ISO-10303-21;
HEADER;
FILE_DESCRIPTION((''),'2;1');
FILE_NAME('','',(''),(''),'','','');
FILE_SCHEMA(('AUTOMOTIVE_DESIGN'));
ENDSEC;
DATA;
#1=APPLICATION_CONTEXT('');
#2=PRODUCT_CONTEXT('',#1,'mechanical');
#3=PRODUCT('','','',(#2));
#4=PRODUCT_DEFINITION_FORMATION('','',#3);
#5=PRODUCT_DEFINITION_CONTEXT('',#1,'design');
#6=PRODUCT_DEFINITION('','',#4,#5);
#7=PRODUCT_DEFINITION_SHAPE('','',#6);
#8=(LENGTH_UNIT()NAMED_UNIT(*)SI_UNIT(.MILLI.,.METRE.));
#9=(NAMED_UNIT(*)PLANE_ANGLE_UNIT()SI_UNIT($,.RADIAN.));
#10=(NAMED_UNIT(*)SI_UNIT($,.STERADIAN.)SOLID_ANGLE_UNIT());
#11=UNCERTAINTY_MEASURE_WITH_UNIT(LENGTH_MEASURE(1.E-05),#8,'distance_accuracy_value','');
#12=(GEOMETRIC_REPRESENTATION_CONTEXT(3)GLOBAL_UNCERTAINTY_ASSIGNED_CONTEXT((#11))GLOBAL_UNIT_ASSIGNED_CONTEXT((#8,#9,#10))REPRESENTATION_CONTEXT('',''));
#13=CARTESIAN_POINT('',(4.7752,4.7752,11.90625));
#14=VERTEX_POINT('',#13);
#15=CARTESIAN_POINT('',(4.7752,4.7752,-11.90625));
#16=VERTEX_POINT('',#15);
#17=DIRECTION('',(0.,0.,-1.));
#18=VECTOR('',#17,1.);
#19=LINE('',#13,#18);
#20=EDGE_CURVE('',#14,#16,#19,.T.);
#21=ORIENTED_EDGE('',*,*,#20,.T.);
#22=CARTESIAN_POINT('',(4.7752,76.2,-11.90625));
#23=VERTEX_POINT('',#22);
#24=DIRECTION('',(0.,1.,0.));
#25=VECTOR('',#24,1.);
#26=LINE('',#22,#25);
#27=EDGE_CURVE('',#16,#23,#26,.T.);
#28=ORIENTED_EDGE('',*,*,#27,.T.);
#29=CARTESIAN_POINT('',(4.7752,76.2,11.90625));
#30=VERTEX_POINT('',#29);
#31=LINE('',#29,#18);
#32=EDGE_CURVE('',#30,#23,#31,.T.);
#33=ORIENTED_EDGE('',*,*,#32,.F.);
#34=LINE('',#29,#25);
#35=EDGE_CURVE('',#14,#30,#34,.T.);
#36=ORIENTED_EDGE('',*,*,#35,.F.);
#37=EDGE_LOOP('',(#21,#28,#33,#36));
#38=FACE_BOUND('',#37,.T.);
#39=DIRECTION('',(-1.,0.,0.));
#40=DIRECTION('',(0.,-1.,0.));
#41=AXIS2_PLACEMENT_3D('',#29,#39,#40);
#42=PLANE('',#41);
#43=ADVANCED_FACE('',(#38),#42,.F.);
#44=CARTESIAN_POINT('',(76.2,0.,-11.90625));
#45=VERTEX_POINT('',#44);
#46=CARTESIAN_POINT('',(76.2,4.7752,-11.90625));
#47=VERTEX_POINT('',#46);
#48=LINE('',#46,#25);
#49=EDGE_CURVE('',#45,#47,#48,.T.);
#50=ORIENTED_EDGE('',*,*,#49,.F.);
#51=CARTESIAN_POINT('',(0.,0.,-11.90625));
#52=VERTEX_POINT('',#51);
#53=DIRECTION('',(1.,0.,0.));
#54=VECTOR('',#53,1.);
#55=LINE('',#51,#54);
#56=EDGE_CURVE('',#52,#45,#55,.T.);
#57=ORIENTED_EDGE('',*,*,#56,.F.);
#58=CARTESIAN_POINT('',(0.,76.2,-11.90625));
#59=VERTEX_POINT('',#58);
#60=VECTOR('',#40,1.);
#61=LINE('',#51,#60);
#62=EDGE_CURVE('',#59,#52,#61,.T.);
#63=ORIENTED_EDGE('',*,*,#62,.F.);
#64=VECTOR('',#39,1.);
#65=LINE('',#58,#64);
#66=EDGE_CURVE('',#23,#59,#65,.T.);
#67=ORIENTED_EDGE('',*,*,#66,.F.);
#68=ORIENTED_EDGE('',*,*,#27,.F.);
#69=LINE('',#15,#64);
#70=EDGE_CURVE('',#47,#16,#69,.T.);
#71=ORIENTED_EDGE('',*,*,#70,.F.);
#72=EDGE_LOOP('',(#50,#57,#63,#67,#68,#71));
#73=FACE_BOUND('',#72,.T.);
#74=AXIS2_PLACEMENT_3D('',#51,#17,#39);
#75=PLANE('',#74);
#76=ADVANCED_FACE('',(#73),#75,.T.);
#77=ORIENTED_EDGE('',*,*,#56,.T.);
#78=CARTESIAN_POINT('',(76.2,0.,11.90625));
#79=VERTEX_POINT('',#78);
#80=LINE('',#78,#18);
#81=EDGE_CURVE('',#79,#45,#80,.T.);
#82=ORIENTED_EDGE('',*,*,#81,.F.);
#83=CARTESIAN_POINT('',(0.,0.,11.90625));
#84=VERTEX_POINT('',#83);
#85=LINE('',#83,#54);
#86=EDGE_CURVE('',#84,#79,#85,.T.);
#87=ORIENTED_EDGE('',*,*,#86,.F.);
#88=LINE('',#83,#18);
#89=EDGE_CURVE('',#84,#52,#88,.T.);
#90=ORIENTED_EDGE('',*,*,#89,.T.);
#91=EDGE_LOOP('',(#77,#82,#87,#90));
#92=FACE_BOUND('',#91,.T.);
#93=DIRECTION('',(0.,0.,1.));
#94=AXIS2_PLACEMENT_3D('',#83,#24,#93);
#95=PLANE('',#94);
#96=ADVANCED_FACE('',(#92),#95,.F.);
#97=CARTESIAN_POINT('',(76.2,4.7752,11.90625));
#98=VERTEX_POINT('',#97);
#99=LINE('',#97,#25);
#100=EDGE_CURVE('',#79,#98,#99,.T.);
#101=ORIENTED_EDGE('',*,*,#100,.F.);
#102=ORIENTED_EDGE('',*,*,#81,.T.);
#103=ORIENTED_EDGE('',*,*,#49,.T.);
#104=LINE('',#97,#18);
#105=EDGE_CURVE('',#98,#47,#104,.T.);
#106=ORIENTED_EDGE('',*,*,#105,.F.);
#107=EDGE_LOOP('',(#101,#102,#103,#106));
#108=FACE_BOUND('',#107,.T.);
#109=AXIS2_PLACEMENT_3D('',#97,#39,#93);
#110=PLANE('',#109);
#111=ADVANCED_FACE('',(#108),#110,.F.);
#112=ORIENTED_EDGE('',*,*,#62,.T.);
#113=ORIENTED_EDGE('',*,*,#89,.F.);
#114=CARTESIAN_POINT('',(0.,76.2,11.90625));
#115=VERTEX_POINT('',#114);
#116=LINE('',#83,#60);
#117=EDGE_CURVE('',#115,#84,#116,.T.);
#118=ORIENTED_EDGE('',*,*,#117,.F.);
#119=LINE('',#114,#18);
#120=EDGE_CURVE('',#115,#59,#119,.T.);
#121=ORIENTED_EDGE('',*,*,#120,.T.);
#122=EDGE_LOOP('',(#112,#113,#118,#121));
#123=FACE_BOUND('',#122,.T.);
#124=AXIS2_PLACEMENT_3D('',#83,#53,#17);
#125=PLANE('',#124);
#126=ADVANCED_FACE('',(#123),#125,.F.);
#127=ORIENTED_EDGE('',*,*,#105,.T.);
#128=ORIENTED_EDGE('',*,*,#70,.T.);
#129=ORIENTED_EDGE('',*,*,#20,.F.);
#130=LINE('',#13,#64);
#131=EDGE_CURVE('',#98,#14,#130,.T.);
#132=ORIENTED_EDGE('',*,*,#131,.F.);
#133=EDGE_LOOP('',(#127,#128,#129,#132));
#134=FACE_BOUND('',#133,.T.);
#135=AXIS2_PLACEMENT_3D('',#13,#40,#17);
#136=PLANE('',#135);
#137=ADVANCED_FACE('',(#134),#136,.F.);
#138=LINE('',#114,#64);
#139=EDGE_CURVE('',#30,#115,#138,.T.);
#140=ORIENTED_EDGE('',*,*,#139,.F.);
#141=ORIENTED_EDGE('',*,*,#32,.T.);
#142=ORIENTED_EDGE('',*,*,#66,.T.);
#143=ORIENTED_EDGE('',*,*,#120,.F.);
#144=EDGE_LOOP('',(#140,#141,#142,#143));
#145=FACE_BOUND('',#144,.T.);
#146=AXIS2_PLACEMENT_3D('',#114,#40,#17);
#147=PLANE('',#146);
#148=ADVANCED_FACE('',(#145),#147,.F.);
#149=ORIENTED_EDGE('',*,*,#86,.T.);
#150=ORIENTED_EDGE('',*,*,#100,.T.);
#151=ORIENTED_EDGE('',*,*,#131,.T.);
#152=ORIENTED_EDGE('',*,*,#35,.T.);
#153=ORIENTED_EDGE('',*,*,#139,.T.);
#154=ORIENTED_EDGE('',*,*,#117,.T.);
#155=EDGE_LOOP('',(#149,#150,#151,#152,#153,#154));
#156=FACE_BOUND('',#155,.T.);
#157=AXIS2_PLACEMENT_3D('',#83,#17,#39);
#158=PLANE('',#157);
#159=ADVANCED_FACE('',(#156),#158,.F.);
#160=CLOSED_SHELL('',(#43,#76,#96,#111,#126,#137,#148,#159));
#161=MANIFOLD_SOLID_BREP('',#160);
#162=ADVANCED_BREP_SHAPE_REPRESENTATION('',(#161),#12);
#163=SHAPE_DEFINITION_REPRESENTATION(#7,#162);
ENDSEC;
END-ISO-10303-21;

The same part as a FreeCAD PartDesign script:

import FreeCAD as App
import Part
import Sketcher
Q = App.Units.Quantity


def add_polygon(sketch, points):
    """Adds a closed chain of lines whose ends are joined by coincident constraints."""
    first, n = sketch.GeometryCount, len(points)
    for a, b in zip(points, points[1:] + points[:1]):
        sketch.addGeometry(Part.LineSegment(App.Vector(*a, 0), App.Vector(*b, 0)), False)
    for i in range(n):
        sketch.addConstraint(Sketcher.Constraint("Coincident", first + i, 2, first + (i + 1) % n, 1))

doc = App.newDocument("Part")
body = doc.addObject("PartDesign::Body", "Body")

# Sketch on XY plane
sketch1 = doc.addObject("Sketcher::SketchObject", "Sketch")
body.addObject(sketch1)
sketch1.AttachmentSupport = (doc.XY_Plane, [""])
sketch1.MapMode = "FlatFace"
add_polygon(sketch1, [(0, 76.2), (0, 0), (76.2, 0), (76.2, 4.8), (4.8, 4.8), (4.8, 76.2)])  # lines 0-5
sketch1.addConstraint(Sketcher.Constraint("Vertical", 0))
sketch1.addConstraint(Sketcher.Constraint("Horizontal", 1))
sketch1.addConstraint(Sketcher.Constraint("Vertical", 2))
sketch1.addConstraint(Sketcher.Constraint("Horizontal", 3))
sketch1.addConstraint(Sketcher.Constraint("Vertical", 4))
sketch1.addConstraint(Sketcher.Constraint("Horizontal", 5))
sketch1.addConstraint(Sketcher.Constraint("Coincident", 0, 2, -1, 1))
sketch1.addConstraint(Sketcher.Constraint("Equal", 1, 0))
sketch1.addConstraint(Sketcher.Constraint("Equal", 5, 2))
sketch1.addConstraint(Sketcher.Constraint("DistanceX", 1, 1, 1, 2, Q("3 in")))
sketch1.addConstraint(Sketcher.Constraint("DistanceX", 3, 2, 3, 1, Q("2.812 in")))
pad1 = doc.addObject("PartDesign::Pad", "Pad")
body.addObject(pad1)
pad1.Profile = sketch1
pad1.Length = Q("0.9375 in")
pad1.Midplane = True

doc.recompute()
